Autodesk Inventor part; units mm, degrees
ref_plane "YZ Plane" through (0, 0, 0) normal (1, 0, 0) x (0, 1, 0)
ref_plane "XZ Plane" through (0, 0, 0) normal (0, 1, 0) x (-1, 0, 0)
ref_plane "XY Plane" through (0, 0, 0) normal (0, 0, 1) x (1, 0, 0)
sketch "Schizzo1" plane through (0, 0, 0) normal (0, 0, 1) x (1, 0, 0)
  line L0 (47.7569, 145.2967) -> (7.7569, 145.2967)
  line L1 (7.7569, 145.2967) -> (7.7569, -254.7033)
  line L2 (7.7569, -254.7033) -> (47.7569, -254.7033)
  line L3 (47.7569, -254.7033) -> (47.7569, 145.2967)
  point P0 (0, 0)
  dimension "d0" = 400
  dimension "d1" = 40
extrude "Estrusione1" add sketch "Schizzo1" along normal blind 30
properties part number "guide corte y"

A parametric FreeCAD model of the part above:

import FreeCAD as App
import Part
import Sketcher

V = App.Vector


def add_polygon(sketch, points):
    """Adds a closed chain of lines whose ends are joined by coincident constraints."""
    first, n = sketch.GeometryCount, len(points)
    for a, b in zip(points, points[1:] + points[:1]):
        sketch.addGeometry(Part.LineSegment(App.Vector(*a, 0), App.Vector(*b, 0)), False)
    for i in range(n):
        sketch.addConstraint(Sketcher.Constraint("Coincident", first + i, 2, first + (i + 1) % n, 1))

doc = App.newDocument("Part")
body = doc.addObject("PartDesign::Body", "Body")

# Sketch on XY plane
sketch1 = doc.addObject("Sketcher::SketchObject", "Sketch")
body.addObject(sketch1)
sketch1.AttachmentSupport = (doc.XY_Plane, [""])
sketch1.MapMode = "FlatFace"
add_polygon(sketch1, [(48, -255), (48, 145), (8, 145), (8, -255)])  # lines 0-3
sketch1.addConstraint([
    Sketcher.Constraint("Vertical", 0),
    Sketcher.Constraint("Horizontal", 1),
    Sketcher.Constraint("Vertical", 2),
    Sketcher.Constraint("Horizontal", 3),
    Sketcher.Constraint("DistanceX", 1, 2, 1, 1, 40.0),
    Sketcher.Constraint("DistanceY", 0, 1, 0, 2, 400.0),
    Sketcher.Constraint("DistanceX", -1, 1, 0, 2, 47.757),
    Sketcher.Constraint("DistanceY", -1, 1, 0, 2, 145.2967),
])
pad1 = doc.addObject("PartDesign::Pad", "Pad")
body.addObject(pad1)
pad1.Profile = sketch1
pad1.Length = 30

doc.recompute()
